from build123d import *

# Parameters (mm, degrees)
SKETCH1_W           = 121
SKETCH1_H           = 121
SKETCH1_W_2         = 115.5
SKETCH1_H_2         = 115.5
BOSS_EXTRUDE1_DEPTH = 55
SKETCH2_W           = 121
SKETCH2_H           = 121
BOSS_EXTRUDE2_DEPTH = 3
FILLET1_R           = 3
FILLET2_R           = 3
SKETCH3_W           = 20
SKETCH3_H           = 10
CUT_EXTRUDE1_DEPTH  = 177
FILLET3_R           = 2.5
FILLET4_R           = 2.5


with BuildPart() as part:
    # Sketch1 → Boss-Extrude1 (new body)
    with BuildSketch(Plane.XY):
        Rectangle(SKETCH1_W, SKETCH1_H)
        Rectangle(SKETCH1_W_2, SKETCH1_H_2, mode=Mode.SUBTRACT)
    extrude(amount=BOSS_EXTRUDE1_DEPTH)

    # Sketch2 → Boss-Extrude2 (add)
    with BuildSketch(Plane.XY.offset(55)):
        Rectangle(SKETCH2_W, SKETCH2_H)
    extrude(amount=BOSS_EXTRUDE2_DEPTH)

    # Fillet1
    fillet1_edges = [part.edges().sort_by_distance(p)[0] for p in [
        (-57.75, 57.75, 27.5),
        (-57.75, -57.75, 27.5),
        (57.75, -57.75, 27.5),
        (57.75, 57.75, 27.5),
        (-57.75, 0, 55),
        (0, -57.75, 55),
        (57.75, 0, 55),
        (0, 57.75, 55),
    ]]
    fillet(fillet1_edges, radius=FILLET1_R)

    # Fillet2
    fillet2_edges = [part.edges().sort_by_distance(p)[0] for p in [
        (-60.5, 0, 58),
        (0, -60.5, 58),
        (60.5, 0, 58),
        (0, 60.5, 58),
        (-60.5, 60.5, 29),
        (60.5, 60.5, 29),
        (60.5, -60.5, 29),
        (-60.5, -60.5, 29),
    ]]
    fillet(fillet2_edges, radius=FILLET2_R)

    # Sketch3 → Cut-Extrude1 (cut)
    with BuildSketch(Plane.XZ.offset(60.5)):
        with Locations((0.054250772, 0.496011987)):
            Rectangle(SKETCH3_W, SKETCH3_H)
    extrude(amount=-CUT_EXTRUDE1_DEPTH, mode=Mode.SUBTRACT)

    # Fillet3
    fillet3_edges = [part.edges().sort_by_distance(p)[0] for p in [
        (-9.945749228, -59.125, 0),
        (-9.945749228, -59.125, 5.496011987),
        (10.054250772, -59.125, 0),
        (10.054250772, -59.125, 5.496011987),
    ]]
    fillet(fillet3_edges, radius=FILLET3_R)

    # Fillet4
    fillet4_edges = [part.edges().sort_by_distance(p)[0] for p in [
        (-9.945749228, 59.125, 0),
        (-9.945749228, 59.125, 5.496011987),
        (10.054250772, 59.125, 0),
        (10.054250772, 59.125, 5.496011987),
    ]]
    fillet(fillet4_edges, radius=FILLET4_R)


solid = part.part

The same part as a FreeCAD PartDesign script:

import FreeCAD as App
import Part
import Sketcher
from FreeCAD import Vector
Q = App.Units.Quantity


def edges_at(feature, points):
    """Names of the edges that pass closest to the given points."""
    edges = feature.Shape.Edges
    near = lambda p: min(range(len(edges)), key=lambda i: edges[i].distToShape(Part.Vertex(*p))[0])
    return sorted({f"Edge{near(p) + 1}" for p in points})


def add_polygon(sketch, points):
    """Adds a closed chain of lines whose ends are joined by coincident constraints."""
    first, n = sketch.GeometryCount, len(points)
    for a, b in zip(points, points[1:] + points[:1]):
        sketch.addGeometry(Part.LineSegment(App.Vector(*a, 0), App.Vector(*b, 0)), False)
    for i in range(n):
        sketch.addConstraint(Sketcher.Constraint("Coincident", first + i, 2, first + (i + 1) % n, 1))

doc = App.newDocument("Part")
params = doc.addObject("Spreadsheet::Sheet", "Params")
for row, (alias, value) in enumerate([
    ("sketch1_width", "121 mm"),
    ("sketch1_width2", "115.5 mm"),
    ("pad1_length", "55 mm"),
    ("sketch2_width", "121 mm"),
    ("pad2_length", "3 mm"),
    ("fillet_radius", "3 mm"),
    ("fillet2_radius", "3 mm"),
    ("sketch3_width", "20 mm"),
    ("sketch3_height", "10 mm"),
    ("pocket1_length", "177 mm"),
    ("fillet3_radius", "2.5 mm"),
    ("fillet4_radius", "2.5 mm"),
], start=1):
    params.set(f"A{row}", alias)
    params.set(f"B{row}", "=" + value)
    params.setAlias(f"B{row}", alias)

body = doc.addObject("PartDesign::Body", "Body")

# Sketch on XY plane
sketch1 = body.newObject("Sketcher::SketchObject", "Sketch")
sketch1.AttachmentSupport = (doc.getObject("XY_Plane"), [""])
sketch1.MapMode = "FlatFace"
add_polygon(sketch1, [(-60, 60), (-60, -60), (60, -60), (60, 60)])  # lines 0-3
add_polygon(sketch1, [(58, -58), (-58, -58), (-58, 58), (58, 58)])  # lines 4-7
sketch1.addConstraint([
    Sketcher.Constraint("Vertical", 0),
    Sketcher.Constraint("Horizontal", 1),
    Sketcher.Constraint("Vertical", 2),
    Sketcher.Constraint("Horizontal", 3),
    Sketcher.Constraint("Horizontal", 4),
    Sketcher.Constraint("Vertical", 5),
    Sketcher.Constraint("Horizontal", 6),
    Sketcher.Constraint("Vertical", 7),
    Sketcher.Constraint("Symmetric", 0, 2, 2, 2, -1, 1),
    Sketcher.Constraint("Symmetric", 4, 2, 6, 2, -1, 1),
    Sketcher.Constraint("Equal", 3, 0),
    Sketcher.Constraint("Equal", 6, 5),
    Sketcher.Constraint("DistanceX", 1, 1, 1, 2, Q("121 mm")),
    Sketcher.Constraint("DistanceX", 4, 2, 4, 1, Q("115.5 mm")),
])
sketch1.setExpression("Constraints[20]", "Params.sketch1_width")
sketch1.setExpression("Constraints[21]", "Params.sketch1_width2")
pad1 = body.newObject("PartDesign::Pad", "Pad")
pad1.Profile = sketch1
pad1.setExpression("Length", "Params.pad1_length")

# Sketch on XY plane
sketch2 = body.newObject("Sketcher::SketchObject", "Sketch001")
sketch2.AttachmentSupport = (doc.getObject("XY_Plane"), [""])
sketch2.MapMode = "FlatFace"
sketch2.AttachmentOffset = App.Placement(Vector(0, 0, 55), App.Rotation())
add_polygon(sketch2, [(-60, 60), (-60, -60), (60, -60), (60, 60)])  # lines 0-3
sketch2.addConstraint([
    Sketcher.Constraint("Vertical", 0),
    Sketcher.Constraint("Horizontal", 1),
    Sketcher.Constraint("Vertical", 2),
    Sketcher.Constraint("Horizontal", 3),
    Sketcher.Constraint("Symmetric", 0, 2, 2, 2, -1, 1),
    Sketcher.Constraint("Equal", 3, 0),
    Sketcher.Constraint("DistanceX", 1, 1, 1, 2, Q("121 mm")),
])
sketch2.setExpression("Constraints[10]", "Params.sketch2_width")
pad2 = body.newObject("PartDesign::Pad", "Pad001")
pad2.Profile = sketch2
pad2.setExpression("Length", "Params.pad2_length")
doc.recompute()

fillet = body.newObject("PartDesign::Fillet", "Fillet")
fillet.Base = (pad2, edges_at(pad2, [
    (-57.75, 57.75, 27.5),
    (-57.75, -57.75, 27.5),
    (57.75, -57.75, 27.5),
    (57.75, 57.75, 27.5),
    (-57.75, 0, 55),
    (0, -57.75, 55),
    (57.75, 0, 55),
    (0, 57.75, 55),
]))
fillet.setExpression("Radius", "Params.fillet_radius")
doc.recompute()

fillet2 = body.newObject("PartDesign::Fillet", "Fillet001")
fillet2.Base = (fillet, edges_at(fillet, [
    (-60.5, 0, 58),
    (0, -60.5, 58),
    (60.5, 0, 58),
    (0, 60.5, 58),
    (-60.5, 60.5, 29),
    (60.5, 60.5, 29),
    (60.5, -60.5, 29),
    (-60.5, -60.5, 29),
]))
fillet2.setExpression("Radius", "Params.fillet2_radius")

# Sketch on XZ plane
sketch3 = body.newObject("Sketcher::SketchObject", "Sketch002")
sketch3.AttachmentSupport = (doc.getObject("XZ_Plane"), [""])
sketch3.MapMode = "FlatFace"
sketch3.AttachmentOffset = App.Placement(Vector(0, 0, 60.5), App.Rotation())
add_polygon(sketch3, [(-10, 5), (-10, -5), (10, -5), (10, 5)])  # lines 0-3
sketch3.addConstraint([
    Sketcher.Constraint("Vertical", 0),
    Sketcher.Constraint("Horizontal", 1),
    Sketcher.Constraint("Vertical", 2),
    Sketcher.Constraint("Horizontal", 3),
    Sketcher.Constraint("DistanceX", 1, 1, 1, 2, Q("20 mm")),
    Sketcher.Constraint("DistanceY", 0, 2, 0, 1, Q("10 mm")),
    Sketcher.Constraint("DistanceX", 0, 2, -1, 1, Q("9.945749 mm")),
    Sketcher.Constraint("DistanceY", 0, 2, -1, 1, Q("4.503988 mm")),
])
sketch3.setExpression("Constraints[8]", "Params.sketch3_width")
sketch3.setExpression("Constraints[9]", "Params.sketch3_height")
pocket1 = body.newObject("PartDesign::Pocket", "Pocket")
pocket1.Profile = sketch3
pocket1.setExpression("Length", "Params.pocket1_length")
doc.recompute()

fillet3 = body.newObject("PartDesign::Fillet", "Fillet002")
fillet3.Base = (pocket1, edges_at(pocket1, [
    (-9.946, -59.125, 0),
    (-9.946, -59.125, 5.496),
    (10.054, -59.125, 0),
    (10.054, -59.125, 5.496),
]))
fillet3.setExpression("Radius", "Params.fillet3_radius")
doc.recompute()

fillet4 = body.newObject("PartDesign::Fillet", "Fillet003")
fillet4.Base = (fillet3, edges_at(fillet3, [
    (-9.946, 59.125, 0),
    (-9.946, 59.125, 5.496),
    (10.054, 59.125, 0),
    (10.054, 59.125, 5.496),
]))
fillet4.setExpression("Radius", "Params.fillet4_radius")

doc.recompute()
